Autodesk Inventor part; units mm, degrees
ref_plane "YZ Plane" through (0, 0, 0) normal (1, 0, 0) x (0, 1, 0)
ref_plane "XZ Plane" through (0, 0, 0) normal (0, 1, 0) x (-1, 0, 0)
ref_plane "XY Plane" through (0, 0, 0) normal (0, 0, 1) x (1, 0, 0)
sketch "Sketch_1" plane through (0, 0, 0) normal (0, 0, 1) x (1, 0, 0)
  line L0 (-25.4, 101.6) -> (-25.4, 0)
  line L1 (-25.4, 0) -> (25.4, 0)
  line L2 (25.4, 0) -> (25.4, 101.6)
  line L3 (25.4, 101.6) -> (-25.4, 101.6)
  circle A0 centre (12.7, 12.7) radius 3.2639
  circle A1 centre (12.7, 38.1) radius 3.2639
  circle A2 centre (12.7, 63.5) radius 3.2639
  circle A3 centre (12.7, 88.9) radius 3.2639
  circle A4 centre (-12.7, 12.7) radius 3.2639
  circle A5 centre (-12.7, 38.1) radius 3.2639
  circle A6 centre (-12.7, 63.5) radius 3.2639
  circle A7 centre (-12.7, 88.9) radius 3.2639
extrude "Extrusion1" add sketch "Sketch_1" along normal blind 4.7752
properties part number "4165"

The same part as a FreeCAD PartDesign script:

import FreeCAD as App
import Part
import Sketcher

V = App.Vector
Q = App.Units.Quantity

doc = App.newDocument("Part")
body = doc.addObject("PartDesign::Body", "Body")

sketch1 = body.newObject("Sketcher::SketchObject", "Sketch")
sketch1.AttachmentSupport = (doc.getObject("XY_Plane"), [""])
sketch1.MapMode = "FlatFace"
sketch1.addGeometry(Part.LineSegment(V(25.4, 101.6, 0), V(-25.4, 101.6, 0)), False)
sketch1.addGeometry(Part.LineSegment(V(-25.4, 101.6, 0), V(-25.4, 0, 0)), False)
sketch1.addGeometry(Part.LineSegment(V(-25.4, 0, 0), V(25.4, 0, 0)), False)
sketch1.addGeometry(Part.LineSegment(V(25.4, 0, 0), V(25.4, 101.6, 0)), False)
sketch1.addGeometry(Part.Circle(V(-12.7, 12.7, 0), V(0, 0, 1), 3.2639), False)
sketch1.addGeometry(Part.Circle(V(-12.7, 38.1, 0), V(0, 0, 1), 3.2639), False)
sketch1.addGeometry(Part.Circle(V(12.7, 12.7, 0), V(0, 0, 1), 3.2639), False)
sketch1.addGeometry(Part.Circle(V(12.7, 38.1, 0), V(0, 0, 1), 3.2639), False)
sketch1.addGeometry(Part.Circle(V(-12.7, 63.5, 0), V(0, 0, 1), 3.2639), False)
sketch1.addGeometry(Part.Circle(V(-12.7, 88.9, 0), V(0, 0, 1), 3.2639), False)
sketch1.addGeometry(Part.Circle(V(12.7, 63.5, 0), V(0, 0, 1), 3.2639), False)
sketch1.addGeometry(Part.Circle(V(12.7, 88.9, 0), V(0, 0, 1), 3.2639), False)
sketch1.addConstraint(Sketcher.Constraint("Coincident", 0, 2, 1, 1))
sketch1.addConstraint(Sketcher.Constraint("Coincident", 1, 2, 2, 1))
sketch1.addConstraint(Sketcher.Constraint("Coincident", 2, 2, 3, 1))
sketch1.addConstraint(Sketcher.Constraint("Coincident", 3, 2, 0, 1))
sketch1.addConstraint(Sketcher.Constraint("Horizontal", 0))
sketch1.addConstraint(Sketcher.Constraint("Vertical", 1))
sketch1.addConstraint(Sketcher.Constraint("Horizontal", 2))
sketch1.addConstraint(Sketcher.Constraint("Vertical", 3))
sketch1.addConstraint(Sketcher.Constraint("Equal", 4, 5))
sketch1.addConstraint(Sketcher.Constraint("Equal", 5, 6))
sketch1.addConstraint(Sketcher.Constraint("Equal", 6, 7))
sketch1.addConstraint(Sketcher.Constraint("Equal", 7, 8))
sketch1.addConstraint(Sketcher.Constraint("Equal", 8, 9))
sketch1.addConstraint(Sketcher.Constraint("Equal", 9, 10))
sketch1.addConstraint(Sketcher.Constraint("Equal", 10, 11))
sketch1.addConstraint(Sketcher.Constraint("Symmetric", 1, 2, 2, 2, -1, 1))
sketch1.addConstraint(Sketcher.Constraint("Symmetric", 4, 3, 6, 3, -2))
sketch1.addConstraint(Sketcher.Constraint("Symmetric", 5, 3, 7, 3, -2))
sketch1.addConstraint(Sketcher.Constraint("Symmetric", 8, 3, 10, 3, -2))
sketch1.addConstraint(Sketcher.Constraint("Symmetric", 9, 3, 11, 3, -2))
sketch1.addConstraint(Sketcher.Constraint("Vertical", 4, 3, 5, 3))
sketch1.addConstraint(Sketcher.Constraint("Vertical", 5, 3, 8, 3))
sketch1.addConstraint(Sketcher.Constraint("Vertical", 8, 3, 9, 3))
sketch1.addConstraint(Sketcher.Constraint("DistanceX", 0, 2, 0, 1, Q("2 in")))
sketch1.addConstraint(Sketcher.Constraint("DistanceY", 1, 2, 1, 1, Q("4 in")))
sketch1.addConstraint(Sketcher.Constraint("Diameter", 4, Q("0.257 in")))
sketch1.addConstraint(Sketcher.Constraint("DistanceY", 4, 3, 5, 3, Q("1 in")))
sketch1.addConstraint(Sketcher.Constraint("DistanceX", 4, 3, 6, 3, Q("1 in")))
sketch1.addConstraint(Sketcher.Constraint("DistanceY", 5, 3, 8, 3, Q("1 in")))
sketch1.addConstraint(Sketcher.Constraint("DistanceY", 8, 3, 9, 3, Q("1 in")))
sketch1.addConstraint(Sketcher.Constraint("DistanceY", -1, 1, 4, 3, Q("0.5 in")))
pad1 = body.newObject("PartDesign::Pad", "Pad")
pad1.Profile = sketch1
pad1.Length = Q("0.188 in")

doc.recompute()
